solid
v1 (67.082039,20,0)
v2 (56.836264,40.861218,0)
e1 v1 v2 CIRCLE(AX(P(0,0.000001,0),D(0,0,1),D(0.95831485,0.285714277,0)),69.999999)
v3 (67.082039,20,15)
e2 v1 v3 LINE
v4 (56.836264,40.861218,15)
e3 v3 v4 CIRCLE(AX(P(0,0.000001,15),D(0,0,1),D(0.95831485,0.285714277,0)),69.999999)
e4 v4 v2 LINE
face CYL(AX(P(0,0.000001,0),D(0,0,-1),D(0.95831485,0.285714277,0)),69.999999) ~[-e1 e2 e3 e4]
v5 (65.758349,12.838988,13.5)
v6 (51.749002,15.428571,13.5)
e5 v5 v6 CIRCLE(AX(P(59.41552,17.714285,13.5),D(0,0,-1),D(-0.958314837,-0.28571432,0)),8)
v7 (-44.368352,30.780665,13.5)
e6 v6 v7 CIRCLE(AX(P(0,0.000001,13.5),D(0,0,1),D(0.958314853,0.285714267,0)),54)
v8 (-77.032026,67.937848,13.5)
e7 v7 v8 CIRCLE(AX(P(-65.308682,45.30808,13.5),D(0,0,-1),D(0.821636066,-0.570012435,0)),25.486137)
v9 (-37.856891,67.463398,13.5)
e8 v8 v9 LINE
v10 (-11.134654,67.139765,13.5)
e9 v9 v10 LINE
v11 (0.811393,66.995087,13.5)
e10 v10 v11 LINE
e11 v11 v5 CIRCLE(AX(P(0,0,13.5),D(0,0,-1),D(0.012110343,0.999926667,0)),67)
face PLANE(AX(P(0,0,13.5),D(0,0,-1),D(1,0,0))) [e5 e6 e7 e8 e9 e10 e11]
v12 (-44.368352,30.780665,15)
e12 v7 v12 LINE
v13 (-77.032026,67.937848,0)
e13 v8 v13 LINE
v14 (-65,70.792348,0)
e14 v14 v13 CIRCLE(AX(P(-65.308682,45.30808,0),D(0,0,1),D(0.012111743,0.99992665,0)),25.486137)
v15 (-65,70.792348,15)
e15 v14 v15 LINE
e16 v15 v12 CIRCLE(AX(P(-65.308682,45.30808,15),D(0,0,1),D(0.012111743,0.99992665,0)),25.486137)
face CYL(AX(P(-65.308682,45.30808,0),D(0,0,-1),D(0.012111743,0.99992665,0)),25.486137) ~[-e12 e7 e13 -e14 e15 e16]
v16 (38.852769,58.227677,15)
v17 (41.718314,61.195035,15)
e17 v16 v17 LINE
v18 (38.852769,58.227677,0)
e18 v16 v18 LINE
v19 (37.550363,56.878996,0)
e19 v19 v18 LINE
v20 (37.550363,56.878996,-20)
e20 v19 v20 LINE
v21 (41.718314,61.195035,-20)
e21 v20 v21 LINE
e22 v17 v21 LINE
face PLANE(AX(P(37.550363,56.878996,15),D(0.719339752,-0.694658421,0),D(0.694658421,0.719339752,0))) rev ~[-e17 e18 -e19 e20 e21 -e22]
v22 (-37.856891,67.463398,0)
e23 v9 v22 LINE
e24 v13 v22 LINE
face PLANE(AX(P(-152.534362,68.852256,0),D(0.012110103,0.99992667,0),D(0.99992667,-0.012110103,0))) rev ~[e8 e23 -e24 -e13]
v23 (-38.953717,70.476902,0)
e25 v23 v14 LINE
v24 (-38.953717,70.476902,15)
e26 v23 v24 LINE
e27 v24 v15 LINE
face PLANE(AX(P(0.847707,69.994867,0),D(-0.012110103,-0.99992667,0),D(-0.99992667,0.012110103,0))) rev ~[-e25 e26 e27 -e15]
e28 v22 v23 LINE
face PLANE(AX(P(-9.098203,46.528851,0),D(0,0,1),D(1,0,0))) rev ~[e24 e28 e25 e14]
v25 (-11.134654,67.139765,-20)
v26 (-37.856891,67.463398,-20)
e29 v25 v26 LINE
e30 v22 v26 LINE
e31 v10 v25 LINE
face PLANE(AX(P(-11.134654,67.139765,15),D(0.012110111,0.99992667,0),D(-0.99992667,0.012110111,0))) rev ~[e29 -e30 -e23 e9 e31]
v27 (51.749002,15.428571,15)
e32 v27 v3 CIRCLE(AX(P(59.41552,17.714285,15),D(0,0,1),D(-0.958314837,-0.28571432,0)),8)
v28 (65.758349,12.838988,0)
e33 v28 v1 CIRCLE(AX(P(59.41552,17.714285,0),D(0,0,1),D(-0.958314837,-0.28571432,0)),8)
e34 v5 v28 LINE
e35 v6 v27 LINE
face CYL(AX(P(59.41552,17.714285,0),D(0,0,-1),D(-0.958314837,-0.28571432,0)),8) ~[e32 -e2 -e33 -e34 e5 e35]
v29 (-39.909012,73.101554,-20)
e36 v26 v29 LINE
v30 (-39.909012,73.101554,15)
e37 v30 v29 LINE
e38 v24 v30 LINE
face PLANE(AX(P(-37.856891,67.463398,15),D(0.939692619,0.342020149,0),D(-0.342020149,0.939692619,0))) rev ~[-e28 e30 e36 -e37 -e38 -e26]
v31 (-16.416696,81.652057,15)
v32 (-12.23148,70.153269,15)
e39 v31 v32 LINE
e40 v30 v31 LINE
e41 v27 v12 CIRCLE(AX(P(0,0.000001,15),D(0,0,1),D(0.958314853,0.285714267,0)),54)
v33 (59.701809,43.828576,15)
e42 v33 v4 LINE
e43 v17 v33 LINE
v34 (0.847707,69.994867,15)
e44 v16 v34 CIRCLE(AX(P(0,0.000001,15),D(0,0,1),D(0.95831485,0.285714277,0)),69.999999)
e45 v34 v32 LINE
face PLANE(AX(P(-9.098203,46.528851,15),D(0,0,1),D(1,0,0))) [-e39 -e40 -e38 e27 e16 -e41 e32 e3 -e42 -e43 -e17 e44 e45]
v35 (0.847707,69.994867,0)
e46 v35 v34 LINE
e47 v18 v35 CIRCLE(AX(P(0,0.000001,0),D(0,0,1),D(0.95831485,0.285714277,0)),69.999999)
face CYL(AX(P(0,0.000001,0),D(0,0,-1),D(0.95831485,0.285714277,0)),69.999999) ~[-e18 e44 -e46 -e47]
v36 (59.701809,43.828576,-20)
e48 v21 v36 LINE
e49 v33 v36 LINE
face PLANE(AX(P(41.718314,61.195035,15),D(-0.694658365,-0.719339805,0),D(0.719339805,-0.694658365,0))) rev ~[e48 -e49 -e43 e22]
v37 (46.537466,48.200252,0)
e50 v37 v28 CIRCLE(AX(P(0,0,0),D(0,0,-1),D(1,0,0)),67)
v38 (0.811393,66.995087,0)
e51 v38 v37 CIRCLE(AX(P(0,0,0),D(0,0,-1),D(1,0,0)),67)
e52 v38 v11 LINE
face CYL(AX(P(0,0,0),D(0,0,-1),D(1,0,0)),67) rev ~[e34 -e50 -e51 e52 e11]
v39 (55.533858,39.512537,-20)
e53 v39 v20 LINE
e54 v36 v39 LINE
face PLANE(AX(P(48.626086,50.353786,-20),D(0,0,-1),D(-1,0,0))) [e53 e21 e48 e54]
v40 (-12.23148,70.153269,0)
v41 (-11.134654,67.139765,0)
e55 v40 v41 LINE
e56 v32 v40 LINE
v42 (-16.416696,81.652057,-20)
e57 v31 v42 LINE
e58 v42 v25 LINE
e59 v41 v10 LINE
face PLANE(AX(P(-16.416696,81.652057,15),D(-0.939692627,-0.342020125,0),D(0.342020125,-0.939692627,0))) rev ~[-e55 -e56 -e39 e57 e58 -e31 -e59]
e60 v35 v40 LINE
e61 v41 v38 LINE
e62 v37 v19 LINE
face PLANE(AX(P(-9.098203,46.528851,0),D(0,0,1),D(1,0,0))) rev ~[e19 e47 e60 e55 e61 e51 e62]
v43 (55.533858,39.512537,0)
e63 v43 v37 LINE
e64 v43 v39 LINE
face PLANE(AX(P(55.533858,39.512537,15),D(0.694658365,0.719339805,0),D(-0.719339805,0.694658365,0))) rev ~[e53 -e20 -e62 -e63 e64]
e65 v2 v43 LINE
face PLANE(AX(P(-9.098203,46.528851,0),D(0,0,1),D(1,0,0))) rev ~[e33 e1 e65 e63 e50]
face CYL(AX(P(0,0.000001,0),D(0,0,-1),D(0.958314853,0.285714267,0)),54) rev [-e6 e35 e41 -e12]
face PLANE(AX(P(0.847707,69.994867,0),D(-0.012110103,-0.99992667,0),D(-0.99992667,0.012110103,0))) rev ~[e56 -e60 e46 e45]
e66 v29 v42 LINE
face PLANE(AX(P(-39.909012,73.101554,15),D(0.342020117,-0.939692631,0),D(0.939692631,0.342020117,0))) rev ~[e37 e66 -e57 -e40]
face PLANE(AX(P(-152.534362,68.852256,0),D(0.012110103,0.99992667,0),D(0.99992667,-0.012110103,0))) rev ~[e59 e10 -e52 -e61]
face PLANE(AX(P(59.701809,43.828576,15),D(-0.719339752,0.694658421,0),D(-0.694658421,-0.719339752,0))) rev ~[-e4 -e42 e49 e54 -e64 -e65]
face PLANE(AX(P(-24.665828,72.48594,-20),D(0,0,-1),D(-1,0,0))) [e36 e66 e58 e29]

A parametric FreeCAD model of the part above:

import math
import FreeCAD as App
import Part
import Sketcher
Q = App.Units.Quantity


def add_polygon(sketch, points):
    """Adds a closed chain of lines whose ends are joined by coincident constraints."""
    first, n = sketch.GeometryCount, len(points)
    for a, b in zip(points, points[1:] + points[:1]):
        sketch.addGeometry(Part.LineSegment(App.Vector(*a, 0), App.Vector(*b, 0)), False)
    for i in range(n):
        sketch.addConstraint(Sketcher.Constraint("Coincident", first + i, 2, first + (i + 1) % n, 1))

doc = App.newDocument("Part")
body = doc.addObject("PartDesign::Body", "Body")

# Sketch on XY plane
sketch1 = doc.addObject("Sketcher::SketchObject", "Sketch")
body.addObject(sketch1)
sketch1.AttachmentSupport = (doc.XY_Plane, [""])
sketch1.MapMode = "FlatFace"
sketch1.addGeometry([
    Part.ArcOfCircle(Part.Circle(App.Vector(0, 0.000001, 0), App.Vector(0, 0, 1), 69.999999), math.radians(16.601549), math.radians(89.306126)),  # 0
    Part.LineSegment(App.Vector(0.847707, 69.994867, 0), App.Vector(-65, 70.792348, 0)),  # 1
    Part.ArcOfCircle(Part.Circle(App.Vector(-65.308682, 45.30808, 0), App.Vector(0, 0, 1), 25.486137), math.radians(89.306031), math.radians(325.248907)),  # 2
    Part.ArcOfCircle(Part.Circle(App.Vector(0, 0.000001, 0), App.Vector(0, 0, 1), 54), math.radians(16.601548), math.radians(145.248916)),  # 3
    Part.ArcOfCircle(Part.Circle(App.Vector(59.41552, 17.714285, 0), App.Vector(0, 0, 1), 8), math.radians(-163.398448), math.radians(16.601552)),  # 4
], False)
sketch1.addConstraint([
    Sketcher.Constraint("Coincident", 0, 2, 1, 1),
    Sketcher.Constraint("Coincident", 1, 2, 2, 1),
    Sketcher.Constraint("Coincident", 2, 2, 3, 2),
    Sketcher.Constraint("Coincident", 3, 1, 4, 1),
    Sketcher.Constraint("Coincident", 4, 2, 0, 1),
    Sketcher.Constraint("Coincident", 0, 3, -1, 1),
    Sketcher.Constraint("Coincident", 3, 3, -1, 1),
    Sketcher.Constraint("Radius", 0, 69.999999),
    Sketcher.Constraint("Radius", 3, 54.0),
    Sketcher.Constraint("DistanceX", 1, 2, -1, 1, 65.0),
    Sketcher.Constraint("DistanceY", -1, 1, 4, 2, 20.0),
    Sketcher.Constraint("DistanceX", -1, 1, 3, 1, 51.749002),
    Sketcher.Constraint("Radius", 2, 25.486137),
    Sketcher.Constraint("DistanceY", 2, 2, 0, 2, 39.214202),
    Sketcher.Constraint("DistanceX", 2, 3, -1, 1, 65.308682),
    Sketcher.Constraint("DistanceX", -1, 1, 4, 3, 59.41552),
    Sketcher.Constraint("DistanceX", 2, 3, 0, 2, 66.156389),
])
pad1 = doc.addObject("PartDesign::Pad", "Pad")
body.addObject(pad1)
pad1.Profile = sketch1
pad1.Length = 15

# Sketch on XY plane
sketch2 = doc.addObject("Sketcher::SketchObject", "Sketch001")
body.addObject(sketch2)
sketch2.AttachmentSupport = (doc.XY_Plane, [""])
sketch2.MapMode = "FlatFace"
sketch2.addGeometry(Part.Circle(App.Vector(0, 0, 0), App.Vector(0, 0, 1), 67), False)
sketch2.addConstraint([
    Sketcher.Constraint("Coincident", 0, 3, -1, 1),
    Sketcher.Constraint("Diameter", 0, 134.0),
])
pocket1 = doc.addObject("PartDesign::Pocket", "Pocket")
body.addObject(pocket1)
pocket1.Profile = sketch2
pocket1.Length = 13.5
pocket1.Reversed = True

# Sketch on XY plane
sketch3 = doc.addObject("Sketcher::SketchObject", "Sketch002")
body.addObject(sketch3)
sketch3.AttachmentSupport = (doc.XY_Plane, [""])
sketch3.MapMode = "FlatFace"
add_polygon(sketch3, [(-152.534362, 68.852256), (0.811393, 66.995087), (-35.4631, -35.7409)])  # lines 0-2
sketch3.addConstraint([
    Sketcher.Constraint("Distance", 0, 153.357001),
    Sketcher.Constraint("DistanceX", 1, 2, -1, 1, 35.4631),
    Sketcher.Constraint("DistanceY", 1, 2, -1, 1, 35.7409),
    Sketcher.Constraint("DistanceX", 2, 2, -1, 1, 152.534362),
    Sketcher.Constraint("DistanceY", 0, 2, 2, 2, 1.857169),
    Sketcher.Constraint("Distance", 1, 108.951925),
])
pocket2 = doc.addObject("PartDesign::Pocket", "Pocket001")
body.addObject(pocket2)
pocket2.Profile = sketch3
pocket2.Length = 13.5
pocket2.Reversed = True

# Sketch on XY plane
sketch4 = doc.addObject("Sketcher::SketchObject", "Sketch003")
body.addObject(sketch4)
sketch4.AttachmentSupport = (doc.XY_Plane, [""])
sketch4.MapMode = "FlatFace"
sketch4.AttachmentOffset = App.Placement(App.Vector(0, 0, 15), App.Rotation())
add_polygon(sketch4, [(41.718314, 61.195035), (37.550363, 56.878996), (55.533858, 39.512537), (59.701809, 43.828576)])  # lines 0-3
sketch4.addConstraint([
    Sketcher.Constraint("Perpendicular", 0, 1),
    Sketcher.Constraint("Perpendicular", 1, 2),
    Sketcher.Constraint("Perpendicular", 2, 3),
    Sketcher.Constraint("Angle", 0, Q("-134.000004 deg")),
    Sketcher.Constraint("Distance", 0, 6.000001),
    Sketcher.Constraint("Distance", 1, 25.0),
    Sketcher.Constraint("DistanceX", -1, 1, 1, 2, 55.533858),
    Sketcher.Constraint("DistanceY", -1, 1, 0, 2, 56.878996),
])
pad2 = doc.addObject("PartDesign::Pad", "Pad001")
body.addObject(pad2)
pad2.Profile = sketch4
pad2.Length = 35
pad2.Reversed = True

# Sketch on XY plane
sketch5 = doc.addObject("Sketcher::SketchObject", "Sketch004")
body.addObject(sketch5)
sketch5.AttachmentSupport = (doc.XY_Plane, [""])
sketch5.MapMode = "FlatFace"
sketch5.AttachmentOffset = App.Placement(App.Vector(0, 0, 15), App.Rotation())
add_polygon(sketch5, [(-39.909012, 73.101554), (-37.856891, 67.463398), (-11.134654, 67.139765), (-16.416696, 81.652057)])  # lines 0-3
sketch5.addConstraint([
    Sketcher.Constraint("Parallel", 0, 2),
    Sketcher.Constraint("Perpendicular", 2, 3),
    Sketcher.Constraint("Angle", 0, Q("-70 deg")),
    Sketcher.Constraint("Distance", 0, 6.0),
    Sketcher.Constraint("Distance", 3, 25.0),
    Sketcher.Constraint("DistanceY", -1, 1, 0, 2, 67.463398),
    Sketcher.Constraint("Distance", 2, 15.443658),
    Sketcher.Constraint("DistanceX", 0, 2, -1, 1, 37.856891),
])
pad3 = doc.addObject("PartDesign::Pad", "Pad002")
body.addObject(pad3)
pad3.Profile = sketch5
pad3.Length = 35
pad3.Reversed = True

doc.recompute()
